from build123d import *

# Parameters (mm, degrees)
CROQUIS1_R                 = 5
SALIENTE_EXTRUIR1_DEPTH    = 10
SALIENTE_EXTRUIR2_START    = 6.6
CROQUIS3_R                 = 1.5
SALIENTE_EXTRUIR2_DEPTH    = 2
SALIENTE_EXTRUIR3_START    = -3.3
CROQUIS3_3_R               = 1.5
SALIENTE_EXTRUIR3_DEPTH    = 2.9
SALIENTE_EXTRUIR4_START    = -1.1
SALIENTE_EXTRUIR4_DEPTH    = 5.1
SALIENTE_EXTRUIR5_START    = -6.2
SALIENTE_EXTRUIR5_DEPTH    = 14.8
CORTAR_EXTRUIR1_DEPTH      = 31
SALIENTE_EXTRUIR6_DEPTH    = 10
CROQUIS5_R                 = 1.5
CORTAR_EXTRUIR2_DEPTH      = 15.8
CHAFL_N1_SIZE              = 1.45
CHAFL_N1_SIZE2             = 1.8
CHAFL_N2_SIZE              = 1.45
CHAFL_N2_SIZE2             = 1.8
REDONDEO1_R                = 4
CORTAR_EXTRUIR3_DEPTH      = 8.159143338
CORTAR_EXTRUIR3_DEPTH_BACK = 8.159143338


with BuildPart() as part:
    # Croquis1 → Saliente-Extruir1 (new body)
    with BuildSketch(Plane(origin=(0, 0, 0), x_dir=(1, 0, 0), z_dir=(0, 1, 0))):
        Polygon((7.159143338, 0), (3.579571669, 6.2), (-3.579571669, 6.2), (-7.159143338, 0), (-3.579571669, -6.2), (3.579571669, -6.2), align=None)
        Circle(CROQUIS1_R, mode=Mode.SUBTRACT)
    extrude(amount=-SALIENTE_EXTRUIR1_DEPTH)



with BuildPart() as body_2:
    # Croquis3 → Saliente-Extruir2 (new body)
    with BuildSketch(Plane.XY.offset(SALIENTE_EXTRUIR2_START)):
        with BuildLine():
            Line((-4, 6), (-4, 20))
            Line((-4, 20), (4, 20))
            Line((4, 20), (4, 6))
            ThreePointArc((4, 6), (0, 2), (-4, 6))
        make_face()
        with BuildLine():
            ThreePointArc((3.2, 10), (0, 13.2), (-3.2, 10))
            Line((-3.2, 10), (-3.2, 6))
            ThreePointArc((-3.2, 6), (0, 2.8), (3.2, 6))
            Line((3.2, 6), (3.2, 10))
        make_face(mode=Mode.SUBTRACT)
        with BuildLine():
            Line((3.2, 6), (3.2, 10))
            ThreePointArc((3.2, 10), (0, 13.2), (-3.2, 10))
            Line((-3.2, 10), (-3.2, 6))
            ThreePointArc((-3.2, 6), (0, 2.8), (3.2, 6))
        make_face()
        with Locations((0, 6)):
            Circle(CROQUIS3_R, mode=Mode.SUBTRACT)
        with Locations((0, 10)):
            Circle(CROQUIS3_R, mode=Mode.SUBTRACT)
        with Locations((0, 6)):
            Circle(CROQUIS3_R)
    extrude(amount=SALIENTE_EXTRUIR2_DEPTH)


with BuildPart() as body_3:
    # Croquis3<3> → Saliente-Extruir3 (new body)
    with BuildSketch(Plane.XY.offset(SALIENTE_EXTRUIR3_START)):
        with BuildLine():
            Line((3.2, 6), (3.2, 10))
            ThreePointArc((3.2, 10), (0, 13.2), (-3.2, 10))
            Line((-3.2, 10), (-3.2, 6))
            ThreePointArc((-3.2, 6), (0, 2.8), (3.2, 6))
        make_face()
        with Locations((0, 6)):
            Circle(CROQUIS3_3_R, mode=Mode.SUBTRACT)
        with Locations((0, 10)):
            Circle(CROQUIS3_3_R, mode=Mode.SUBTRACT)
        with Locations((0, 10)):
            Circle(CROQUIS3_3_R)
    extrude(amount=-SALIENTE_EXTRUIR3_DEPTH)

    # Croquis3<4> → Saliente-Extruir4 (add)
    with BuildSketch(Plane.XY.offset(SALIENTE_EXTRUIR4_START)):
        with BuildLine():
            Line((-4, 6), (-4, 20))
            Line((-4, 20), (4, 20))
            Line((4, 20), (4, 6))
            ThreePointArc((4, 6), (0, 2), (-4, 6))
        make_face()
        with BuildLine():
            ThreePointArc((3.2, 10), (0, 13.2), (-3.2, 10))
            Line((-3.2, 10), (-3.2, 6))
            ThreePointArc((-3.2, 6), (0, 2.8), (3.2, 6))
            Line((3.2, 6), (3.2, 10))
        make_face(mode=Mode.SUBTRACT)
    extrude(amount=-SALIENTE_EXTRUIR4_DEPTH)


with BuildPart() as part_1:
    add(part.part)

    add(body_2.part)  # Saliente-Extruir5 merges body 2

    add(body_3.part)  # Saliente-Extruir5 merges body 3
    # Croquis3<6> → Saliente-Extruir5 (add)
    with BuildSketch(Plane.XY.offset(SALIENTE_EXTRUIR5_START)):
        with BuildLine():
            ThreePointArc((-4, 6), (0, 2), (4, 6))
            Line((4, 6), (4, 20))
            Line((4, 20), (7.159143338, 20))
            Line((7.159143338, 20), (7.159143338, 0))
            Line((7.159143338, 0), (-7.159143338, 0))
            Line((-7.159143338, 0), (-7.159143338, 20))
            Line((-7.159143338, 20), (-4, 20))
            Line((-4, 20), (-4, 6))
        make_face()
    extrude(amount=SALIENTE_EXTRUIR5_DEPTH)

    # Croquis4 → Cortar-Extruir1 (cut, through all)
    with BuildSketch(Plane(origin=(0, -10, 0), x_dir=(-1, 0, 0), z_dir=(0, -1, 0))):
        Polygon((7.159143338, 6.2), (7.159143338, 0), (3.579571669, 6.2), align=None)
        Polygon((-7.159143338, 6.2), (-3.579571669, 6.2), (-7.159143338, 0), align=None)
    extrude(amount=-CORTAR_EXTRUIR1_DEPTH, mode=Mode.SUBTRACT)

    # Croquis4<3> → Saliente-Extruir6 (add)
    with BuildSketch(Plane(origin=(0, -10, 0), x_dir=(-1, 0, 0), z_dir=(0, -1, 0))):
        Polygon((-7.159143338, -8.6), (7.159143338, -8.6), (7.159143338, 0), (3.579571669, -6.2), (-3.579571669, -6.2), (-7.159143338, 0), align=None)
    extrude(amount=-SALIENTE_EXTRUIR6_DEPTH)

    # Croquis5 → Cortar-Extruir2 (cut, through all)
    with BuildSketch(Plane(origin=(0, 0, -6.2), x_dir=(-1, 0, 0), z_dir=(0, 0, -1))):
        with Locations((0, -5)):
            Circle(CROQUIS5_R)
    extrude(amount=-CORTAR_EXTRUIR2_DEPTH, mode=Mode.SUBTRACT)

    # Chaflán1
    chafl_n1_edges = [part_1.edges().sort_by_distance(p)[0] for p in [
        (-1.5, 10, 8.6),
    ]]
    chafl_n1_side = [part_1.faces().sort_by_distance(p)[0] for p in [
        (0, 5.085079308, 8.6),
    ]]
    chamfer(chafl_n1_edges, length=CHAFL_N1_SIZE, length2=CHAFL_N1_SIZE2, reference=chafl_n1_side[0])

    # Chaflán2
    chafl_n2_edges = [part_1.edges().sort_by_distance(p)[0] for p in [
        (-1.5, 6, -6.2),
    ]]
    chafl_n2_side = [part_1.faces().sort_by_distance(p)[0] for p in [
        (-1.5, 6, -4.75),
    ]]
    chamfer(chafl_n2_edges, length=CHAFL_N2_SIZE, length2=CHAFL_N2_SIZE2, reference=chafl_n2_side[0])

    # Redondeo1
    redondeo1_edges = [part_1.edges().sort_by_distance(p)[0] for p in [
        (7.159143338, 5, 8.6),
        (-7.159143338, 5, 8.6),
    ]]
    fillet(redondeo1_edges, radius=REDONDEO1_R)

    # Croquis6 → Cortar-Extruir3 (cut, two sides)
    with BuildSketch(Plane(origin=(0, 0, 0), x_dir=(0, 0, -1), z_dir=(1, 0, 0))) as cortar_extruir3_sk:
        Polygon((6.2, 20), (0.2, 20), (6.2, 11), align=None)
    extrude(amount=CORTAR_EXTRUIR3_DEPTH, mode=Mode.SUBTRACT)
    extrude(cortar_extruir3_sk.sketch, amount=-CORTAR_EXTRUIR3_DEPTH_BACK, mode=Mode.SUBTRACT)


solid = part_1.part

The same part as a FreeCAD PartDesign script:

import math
import FreeCAD as App
import Part
import Sketcher
from FreeCAD import Vector
Q = App.Units.Quantity


def edges_at(feature, points):
    """Names of the edges that pass closest to the given points."""
    edges = feature.Shape.Edges
    near = lambda p: min(range(len(edges)), key=lambda i: edges[i].distToShape(Part.Vertex(*p))[0])
    return sorted({f"Edge{near(p) + 1}" for p in points})

doc = App.newDocument("Part")
body = doc.addObject("PartDesign::Body", "Body")

# Sketch on XZ plane
sketch1 = body.newObject("Sketcher::SketchObject", "Sketch")
sketch1.AttachmentSupport = (doc.getObject("XZ_Plane"), [""])
sketch1.MapMode = "FlatFace"
sketch1.addGeometry(Part.LineSegment(Vector(7, 0, 0), Vector(4, -6, 0)), False)
sketch1.addGeometry(Part.LineSegment(Vector(4, -6, 0), Vector(-4, -6, 0)), False)
sketch1.addGeometry(Part.LineSegment(Vector(-4, -6, 0), Vector(-7, 0, 0)), False)
sketch1.addGeometry(Part.LineSegment(Vector(-7, 0, 0), Vector(-4, 6, 0)), False)
sketch1.addGeometry(Part.LineSegment(Vector(-4, 6, 0), Vector(4, 6, 0)), False)
sketch1.addGeometry(Part.LineSegment(Vector(4, 6, 0), Vector(7, 0, 0)), False)
sketch1.addGeometry(Part.Circle(Vector(0, 0, 0), Vector(0, 0, 1), 5), False)
sketch1.addConstraint(Sketcher.Constraint("Coincident", 0, 2, 1, 1))
sketch1.addConstraint(Sketcher.Constraint("Coincident", 1, 2, 2, 1))
sketch1.addConstraint(Sketcher.Constraint("Coincident", 2, 2, 3, 1))
sketch1.addConstraint(Sketcher.Constraint("Coincident", 3, 2, 4, 1))
sketch1.addConstraint(Sketcher.Constraint("Coincident", 4, 2, 5, 1))
sketch1.addConstraint(Sketcher.Constraint("Coincident", 5, 2, 0, 1))
sketch1.addConstraint(Sketcher.Constraint("Horizontal", 1))
sketch1.addConstraint(Sketcher.Constraint("Horizontal", 4))
sketch1.addConstraint(Sketcher.Constraint("Coincident", 6, 3, -1, 1))
sketch1.addConstraint(Sketcher.Constraint("Symmetric", 0, 2, 3, 2, -1, 1))
sketch1.addConstraint(Sketcher.Constraint("Symmetric", 2, 2, 5, 2, -1, 1))
sketch1.addConstraint(Sketcher.Constraint("PointOnObject", 2, 2, -1))
sketch1.addConstraint(Sketcher.Constraint("Parallel", 2, 5))
sketch1.addConstraint(Sketcher.Constraint("Vertical", 1, 2, 3, 2))
sketch1.addConstraint(Sketcher.Constraint("Diameter", 6, Q("10 mm")))
sketch1.addConstraint(Sketcher.Constraint("Angle", 0, Q("-120 deg")))
sketch1.addConstraint(Sketcher.Constraint("DistanceY", 0, 2, -1, 1, Q("6.2 mm")))
sketch1.addConstraint(Sketcher.Constraint("DistanceX", 1, 2, 1, 1, Q("7.159143 mm")))
pad1 = body.newObject("PartDesign::Pad", "Pad")
pad1.Profile = sketch1
pad1.Length = 10
body2 = doc.addObject("PartDesign::Body", "Body001")

# Sketch on XY plane
sketch2 = body2.newObject("Sketcher::SketchObject", "Sketch001")
sketch2.AttachmentSupport = (doc.getObject("XY_Plane001"), [""])
sketch2.MapMode = "FlatFace"
sketch2.AttachmentOffset = App.Placement(Vector(0, 0, 6.6), App.Rotation())
sketch2.addGeometry(Part.LineSegment(Vector(-4, 20, 0), Vector(-4, 6, 0)), False)
sketch2.addGeometry(Part.ArcOfCircle(Part.Circle(Vector(0, 6, 0), Vector(0, 0, 1), 4), math.radians(180), math.radians(360)), False)
sketch2.addGeometry(Part.LineSegment(Vector(4, 6, 0), Vector(4, 20, 0)), False)
sketch2.addGeometry(Part.LineSegment(Vector(4, 20, 0), Vector(-4, 20, 0)), False)
sketch2.addGeometry(Part.Circle(Vector(0, 10, 0), Vector(0, 0, 1), 1.5), False)
sketch2.addConstraint(Sketcher.Constraint("Tangent", 0, 2, 1, 1))
sketch2.addConstraint(Sketcher.Constraint("Tangent", 1, 2, 2, 1))
sketch2.addConstraint(Sketcher.Constraint("Coincident", 2, 2, 3, 1))
sketch2.addConstraint(Sketcher.Constraint("Coincident", 3, 2, 0, 1))
sketch2.addConstraint(Sketcher.Constraint("Vertical", 0))
sketch2.addConstraint(Sketcher.Constraint("Vertical", 2))
sketch2.addConstraint(Sketcher.Constraint("Horizontal", 3))
sketch2.addConstraint(Sketcher.Constraint("PointOnObject", 1, 3, -2))
sketch2.addConstraint(Sketcher.Constraint("PointOnObject", 4, 3, -2))
sketch2.addConstraint(Sketcher.Constraint("Diameter", 4, Q("3 mm")))
sketch2.addConstraint(Sketcher.Constraint("Radius", 1, Q("4 mm")))
sketch2.addConstraint(Sketcher.Constraint("DistanceY", 0, 2, 0, 1, Q("14 mm")))
sketch2.addConstraint(Sketcher.Constraint("DistanceY", -1, 1, 1, 3, Q("6 mm")))
sketch2.addConstraint(Sketcher.Constraint("DistanceY", -1, 1, 4, 3, Q("10 mm")))
pad2 = body2.newObject("PartDesign::Pad", "Pad001")
pad2.Profile = sketch2
pad2.Length = 2
body3 = doc.addObject("PartDesign::Body", "Body002")

# Sketch on XY plane
sketch3 = body3.newObject("Sketcher::SketchObject", "Sketch002")
sketch3.AttachmentSupport = (doc.getObject("XY_Plane002"), [""])
sketch3.MapMode = "FlatFace"
sketch3.AttachmentOffset = App.Placement(Vector(0, 0, -3.3), App.Rotation())
sketch3.addGeometry(Part.LineSegment(Vector(3.2, 6, 0), Vector(3.2, 10, 0)), False)
sketch3.addGeometry(Part.ArcOfCircle(Part.Circle(Vector(0, 10, 0), Vector(0, 0, 1), 3.2), math.radians(0), math.radians(180)), False)
sketch3.addGeometry(Part.LineSegment(Vector(-3.2, 10, 0), Vector(-3.2, 6, 0)), False)
sketch3.addGeometry(Part.ArcOfCircle(Part.Circle(Vector(0, 6, 0), Vector(0, 0, 1), 3.2), math.radians(180), math.radians(360)), False)
sketch3.addGeometry(Part.Circle(Vector(0, 6, 0), Vector(0, 0, 1), 1.5), False)
sketch3.addConstraint(Sketcher.Constraint("Tangent", 0, 2, 1, 1))
sketch3.addConstraint(Sketcher.Constraint("Tangent", 1, 2, 2, 1))
sketch3.addConstraint(Sketcher.Constraint("Tangent", 2, 2, 3, 1))
sketch3.addConstraint(Sketcher.Constraint("Tangent", 3, 2, 0, 1))
sketch3.addConstraint(Sketcher.Constraint("Vertical", 0))
sketch3.addConstraint(Sketcher.Constraint("Vertical", 2))
sketch3.addConstraint(Sketcher.Constraint("Coincident", 4, 3, 3, 3))
sketch3.addConstraint(Sketcher.Constraint("PointOnObject", 1, 3, -2))
sketch3.addConstraint(Sketcher.Constraint("Diameter", 4, Q("3 mm")))
sketch3.addConstraint(Sketcher.Constraint("Radius", 1, Q("3.2 mm")))
sketch3.addConstraint(Sketcher.Constraint("DistanceY", 0, 1, 0, 2, Q("4 mm")))
sketch3.addConstraint(Sketcher.Constraint("DistanceY", -1, 1, 1, 3, Q("10 mm")))
pad3 = body3.newObject("PartDesign::Pad", "Pad002")
pad3.Profile = sketch3
pad3.Length = 2.9
pad3.Reversed = True

# Sketch on XY plane
sketch4 = body3.newObject("Sketcher::SketchObject", "Sketch003")
sketch4.AttachmentSupport = (doc.getObject("XY_Plane002"), [""])
sketch4.MapMode = "FlatFace"
sketch4.AttachmentOffset = App.Placement(Vector(0, 0, -1.1), App.Rotation())
sketch4.addGeometry(Part.LineSegment(Vector(-4, 20, 0), Vector(-4, 6, 0)), False)
sketch4.addGeometry(Part.ArcOfCircle(Part.Circle(Vector(0, 6, 0), Vector(0, 0, 1), 4), math.radians(180), math.radians(360)), False)
sketch4.addGeometry(Part.LineSegment(Vector(4, 6, 0), Vector(4, 20, 0)), False)
sketch4.addGeometry(Part.LineSegment(Vector(4, 20, 0), Vector(-4, 20, 0)), False)
sketch4.addGeometry(Part.LineSegment(Vector(3.2, 10, 0), Vector(3.2, 6, 0)), False)
sketch4.addGeometry(Part.ArcOfCircle(Part.Circle(Vector(0, 6, 0), Vector(0, 0, 1), 3.2), math.radians(180), math.radians(360)), False)
sketch4.addGeometry(Part.LineSegment(Vector(-3.2, 6, 0), Vector(-3.2, 10, 0)), False)
sketch4.addGeometry(Part.ArcOfCircle(Part.Circle(Vector(0, 10, 0), Vector(0, 0, 1), 3.2), math.radians(0), math.radians(180)), False)
sketch4.addConstraint(Sketcher.Constraint("Tangent", 0, 2, 1, 1))
sketch4.addConstraint(Sketcher.Constraint("Tangent", 1, 2, 2, 1))
sketch4.addConstraint(Sketcher.Constraint("Coincident", 2, 2, 3, 1))
sketch4.addConstraint(Sketcher.Constraint("Coincident", 3, 2, 0, 1))
sketch4.addConstraint(Sketcher.Constraint("Tangent", 4, 2, 5, 2))
sketch4.addConstraint(Sketcher.Constraint("Tangent", 5, 1, 6, 1))
sketch4.addConstraint(Sketcher.Constraint("Tangent", 6, 2, 7, 2))
sketch4.addConstraint(Sketcher.Constraint("Tangent", 7, 1, 4, 1))
sketch4.addConstraint(Sketcher.Constraint("Vertical", 0))
sketch4.addConstraint(Sketcher.Constraint("Vertical", 2))
sketch4.addConstraint(Sketcher.Constraint("Horizontal", 3))
sketch4.addConstraint(Sketcher.Constraint("Vertical", 4))
sketch4.addConstraint(Sketcher.Constraint("Vertical", 6))
sketch4.addConstraint(Sketcher.Constraint("Coincident", 5, 3, 1, 3))
sketch4.addConstraint(Sketcher.Constraint("PointOnObject", 1, 3, -2))
sketch4.addConstraint(Sketcher.Constraint("Radius", 1, Q("4 mm")))
sketch4.addConstraint(Sketcher.Constraint("Radius", 5, Q("3.2 mm")))
sketch4.addConstraint(Sketcher.Constraint("DistanceY", 0, 2, 0, 1, Q("14 mm")))
sketch4.addConstraint(Sketcher.Constraint("DistanceY", 4, 2, 4, 1, Q("4 mm")))
sketch4.addConstraint(Sketcher.Constraint("DistanceY", -1, 1, 1, 3, Q("6 mm")))
pad4 = body3.newObject("PartDesign::Pad", "Pad003")
pad4.Profile = sketch4
pad4.Length = 5.1
pad4.Reversed = True
body.AllowCompound = True
doc.recompute()

boolean = body.newObject("PartDesign::Boolean", "Boolean")
boolean.Type = "Fuse"
boolean.addObjects([body2])
doc.recompute()

boolean2 = body.newObject("PartDesign::Boolean", "Boolean001")
boolean2.Type = "Fuse"
boolean2.addObjects([body3])

# Sketch on XY plane
sketch5 = body.newObject("Sketcher::SketchObject", "Sketch004")
sketch5.AttachmentSupport = (doc.getObject("XY_Plane"), [""])
sketch5.MapMode = "FlatFace"
sketch5.AttachmentOffset = App.Placement(Vector(0, 0, -6.2), App.Rotation())
sketch5.addGeometry(Part.ArcOfCircle(Part.Circle(Vector(0, 6, 0), Vector(0, 0, 1), 4), math.radians(180), math.radians(360)), False)
sketch5.addGeometry(Part.LineSegment(Vector(-4, 6, 0), Vector(-4, 20, 0)), False)
sketch5.addGeometry(Part.LineSegment(Vector(-4, 20, 0), Vector(-7.2, 20, 0)), False)
sketch5.addGeometry(Part.LineSegment(Vector(-7.2, 20, 0), Vector(-7.2, 0, 0)), False)
sketch5.addGeometry(Part.LineSegment(Vector(-7.2, 0, 0), Vector(7.2, 0, 0)), False)
sketch5.addGeometry(Part.LineSegment(Vector(7.2, 0, 0), Vector(7.2, 20, 0)), False)
sketch5.addGeometry(Part.LineSegment(Vector(7.2, 20, 0), Vector(4, 20, 0)), False)
sketch5.addGeometry(Part.LineSegment(Vector(4, 20, 0), Vector(4, 6, 0)), False)
sketch5.addConstraint(Sketcher.Constraint("Tangent", 0, 1, 1, 1))
sketch5.addConstraint(Sketcher.Constraint("Coincident", 1, 2, 2, 1))
sketch5.addConstraint(Sketcher.Constraint("Coincident", 2, 2, 3, 1))
sketch5.addConstraint(Sketcher.Constraint("Coincident", 3, 2, 4, 1))
sketch5.addConstraint(Sketcher.Constraint("Coincident", 4, 2, 5, 1))
sketch5.addConstraint(Sketcher.Constraint("Coincident", 5, 2, 6, 1))
sketch5.addConstraint(Sketcher.Constraint("Coincident", 6, 2, 7, 1))
sketch5.addConstraint(Sketcher.Constraint("Tangent", 7, 2, 0, 2))
sketch5.addConstraint(Sketcher.Constraint("Vertical", 1))
sketch5.addConstraint(Sketcher.Constraint("Horizontal", 2))
sketch5.addConstraint(Sketcher.Constraint("Vertical", 3))
sketch5.addConstraint(Sketcher.Constraint("Horizontal", 4))
sketch5.addConstraint(Sketcher.Constraint("Vertical", 5))
sketch5.addConstraint(Sketcher.Constraint("Horizontal", 6))
sketch5.addConstraint(Sketcher.Constraint("Vertical", 7))
sketch5.addConstraint(Sketcher.Constraint("Symmetric", 3, 2, 4, 2, -1, 1))
sketch5.addConstraint(Sketcher.Constraint("Symmetric", 1, 2, 6, 2, -2))
sketch5.addConstraint(Sketcher.Constraint("Radius", 0, Q("4 mm")))
sketch5.addConstraint(Sketcher.Constraint("DistanceY", 1, 1, 1, 2, Q("14 mm")))
sketch5.addConstraint(Sketcher.Constraint("DistanceY", 3, 2, 3, 1, Q("20 mm")))
sketch5.addConstraint(Sketcher.Constraint("DistanceX", 2, 2, 2, 1, Q("3.159143 mm")))
pad5 = body.newObject("PartDesign::Pad", "Pad004")
pad5.Profile = sketch5
pad5.Length = 14.8

# Sketch on XZ plane
sketch6 = body.newObject("Sketcher::SketchObject", "Sketch005")
sketch6.AttachmentSupport = (doc.getObject("XZ_Plane"), [""])
sketch6.MapMode = "FlatFace"
sketch6.AttachmentOffset = App.Placement(Vector(0, 0, 10), App.Rotation())
sketch6.addGeometry(Part.LineSegment(Vector(-7.2, 0, 0), Vector(-7.2, -6.2, 0)), False)
sketch6.addGeometry(Part.LineSegment(Vector(-7.2, -6.2, 0), Vector(-3.6, -6.2, 0)), False)
sketch6.addGeometry(Part.LineSegment(Vector(-3.6, -6.2, 0), Vector(-7.2, 0, 0)), False)
sketch6.addGeometry(Part.LineSegment(Vector(3.6, -6.2, 0), Vector(7.2, -6.2, 0)), False)
sketch6.addGeometry(Part.LineSegment(Vector(7.2, -6.2, 0), Vector(7.2, 0, 0)), False)
sketch6.addGeometry(Part.LineSegment(Vector(7.2, 0, 0), Vector(3.6, -6.2, 0)), False)
sketch6.addConstraint(Sketcher.Constraint("Coincident", 0, 2, 1, 1))
sketch6.addConstraint(Sketcher.Constraint("Coincident", 1, 2, 2, 1))
sketch6.addConstraint(Sketcher.Constraint("Coincident", 2, 2, 0, 1))
sketch6.addConstraint(Sketcher.Constraint("Coincident", 3, 2, 4, 1))
sketch6.addConstraint(Sketcher.Constraint("Coincident", 4, 2, 5, 1))
sketch6.addConstraint(Sketcher.Constraint("Coincident", 5, 2, 3, 1))
sketch6.addConstraint(Sketcher.Constraint("Vertical", 0))
sketch6.addConstraint(Sketcher.Constraint("Horizontal", 1))
sketch6.addConstraint(Sketcher.Constraint("Horizontal", 3))
sketch6.addConstraint(Sketcher.Constraint("Vertical", 4))
sketch6.addConstraint(Sketcher.Constraint("Symmetric", 2, 2, 4, 2, -1, 1))
sketch6.addConstraint(Sketcher.Constraint("Symmetric", 1, 2, 5, 2, -2))
sketch6.addConstraint(Sketcher.Constraint("PointOnObject", 2, 2, -1))
sketch6.addConstraint(Sketcher.Constraint("Angle", 2, Q("120 deg")))
sketch6.addConstraint(Sketcher.Constraint("DistanceY", 0, 2, 0, 1, Q("6.2 mm")))
sketch6.addConstraint(Sketcher.Constraint("DistanceX", 1, 2, -1, 1, Q("3.579572 mm")))
pocket1 = body.newObject("PartDesign::Pocket", "Pocket")
pocket1.Profile = sketch6
pocket1.Type = "ThroughAll"

# Sketch on XZ plane
sketch7 = body.newObject("Sketcher::SketchObject", "Sketch006")
sketch7.AttachmentSupport = (doc.getObject("XZ_Plane"), [""])
sketch7.MapMode = "FlatFace"
sketch7.AttachmentOffset = App.Placement(Vector(0, 0, 10), App.Rotation())
sketch7.addGeometry(Part.LineSegment(Vector(7, 9, 0), Vector(-7, 9, 0)), False)
sketch7.addGeometry(Part.LineSegment(Vector(-7, 9, 0), Vector(-7, 0, 0)), False)
sketch7.addGeometry(Part.LineSegment(Vector(-7, 0, 0), Vector(-4, 6, 0)), False)
sketch7.addGeometry(Part.LineSegment(Vector(-4, 6, 0), Vector(4, 6, 0)), False)
sketch7.addGeometry(Part.LineSegment(Vector(4, 6, 0), Vector(7, 0, 0)), False)
sketch7.addGeometry(Part.LineSegment(Vector(7, 0, 0), Vector(7, 9, 0)), False)
sketch7.addConstraint(Sketcher.Constraint("Coincident", 0, 2, 1, 1))
sketch7.addConstraint(Sketcher.Constraint("Coincident", 1, 2, 2, 1))
sketch7.addConstraint(Sketcher.Constraint("Coincident", 2, 2, 3, 1))
sketch7.addConstraint(Sketcher.Constraint("Coincident", 3, 2, 4, 1))
sketch7.addConstraint(Sketcher.Constraint("Coincident", 4, 2, 5, 1))
sketch7.addConstraint(Sketcher.Constraint("Coincident", 5, 2, 0, 1))
sketch7.addConstraint(Sketcher.Constraint("Horizontal", 0))
sketch7.addConstraint(Sketcher.Constraint("Vertical", 1))
sketch7.addConstraint(Sketcher.Constraint("Horizontal", 3))
sketch7.addConstraint(Sketcher.Constraint("Vertical", 5))
sketch7.addConstraint(Sketcher.Constraint("Symmetric", 1, 2, 4, 2, -1, 1))
sketch7.addConstraint(Sketcher.Constraint("PointOnObject", 1, 2, -1))
sketch7.addConstraint(Sketcher.Constraint("Equal", 2, 4))
sketch7.addConstraint(Sketcher.Constraint("Angle", 2, Q("60 deg")))
sketch7.addConstraint(Sketcher.Constraint("DistanceY", 1, 2, 1, 1, Q("8.6 mm")))
sketch7.addConstraint(Sketcher.Constraint("DistanceY", -1, 1, 2, 2, Q("6.2 mm")))
sketch7.addConstraint(Sketcher.Constraint("DistanceX", 0, 2, 0, 1, Q("14.318287 mm")))
pad6 = body.newObject("PartDesign::Pad", "Pad005")
pad6.Profile = sketch7
pad6.Length = 10
pad6.Reversed = True

# Sketch on XY plane
sketch8 = body.newObject("Sketcher::SketchObject", "Sketch007")
sketch8.AttachmentSupport = (doc.getObject("XY_Plane"), [""])
sketch8.MapMode = "FlatFace"
sketch8.AttachmentOffset = App.Placement(Vector(0, 0, -6.2), App.Rotation())
sketch8.addGeometry(Part.Circle(Vector(0, -5, 0), Vector(0, 0, 1), 1.5), False)
sketch8.addConstraint(Sketcher.Constraint("PointOnObject", 0, 3, -2))
sketch8.addConstraint(Sketcher.Constraint("Diameter", 0, Q("3 mm")))
sketch8.addConstraint(Sketcher.Constraint("DistanceY", 0, 3, -1, 1, Q("5 mm")))
pocket2 = body.newObject("PartDesign::Pocket", "Pocket001")
pocket2.Profile = sketch8
pocket2.Type = "ThroughAll"
pocket2.Reversed = True
doc.recompute()

chamfer = body.newObject("PartDesign::Chamfer", "Chamfer")
chamfer.Base = (pocket2, edges_at(pocket2, [(-1.5, 10, 8.6)]))
chamfer.ChamferType = "Two distances"
chamfer.Size = 1.45
chamfer.Size2 = 1.8
doc.recompute()

chamfer2 = body.newObject("PartDesign::Chamfer", "Chamfer001")
chamfer2.Base = (chamfer, edges_at(chamfer, [(-1.5, 6, -6.2)]))
chamfer2.ChamferType = "Two distances"
chamfer2.Size = 1.45
chamfer2.Size2 = 1.8
chamfer2.FlipDirection = True
doc.recompute()

fillet = body.newObject("PartDesign::Fillet", "Fillet")
fillet.Base = (chamfer2, edges_at(chamfer2, [(7.159, 5, 8.6), (-7.159, 5, 8.6)]))
fillet.Radius = 4

# Sketch on YZ plane
sketch9 = body.newObject("Sketcher::SketchObject", "Sketch008")
sketch9.AttachmentSupport = (doc.getObject("YZ_Plane"), [""])
sketch9.MapMode = "FlatFace"
sketch9.addGeometry(Part.LineSegment(Vector(20, -6, 0), Vector(20, 0, 0)), False)
sketch9.addGeometry(Part.LineSegment(Vector(20, 0, 0), Vector(11, -6, 0)), False)
sketch9.addGeometry(Part.LineSegment(Vector(11, -6, 0), Vector(20, -6, 0)), False)
sketch9.addConstraint(Sketcher.Constraint("Coincident", 0, 2, 1, 1))
sketch9.addConstraint(Sketcher.Constraint("Coincident", 1, 2, 2, 1))
sketch9.addConstraint(Sketcher.Constraint("Coincident", 2, 2, 0, 1))
sketch9.addConstraint(Sketcher.Constraint("Vertical", 0))
sketch9.addConstraint(Sketcher.Constraint("Horizontal", 2))
sketch9.addConstraint(Sketcher.Constraint("DistanceX", 2, 1, 2, 2, Q("9 mm")))
sketch9.addConstraint(Sketcher.Constraint("DistanceY", 0, 1, 0, 2, Q("6 mm")))
sketch9.addConstraint(Sketcher.Constraint("DistanceX", -1, 1, 0, 2, Q("20 mm")))
sketch9.addConstraint(Sketcher.Constraint("DistanceY", 0, 2, -1, 1, Q("0.2 mm")))
pocket3 = body.newObject("PartDesign::Pocket", "Pocket002")
pocket3.Profile = sketch9
pocket3.Type = "ThroughAll"
pocket3.Midplane = True

doc.recompute()
